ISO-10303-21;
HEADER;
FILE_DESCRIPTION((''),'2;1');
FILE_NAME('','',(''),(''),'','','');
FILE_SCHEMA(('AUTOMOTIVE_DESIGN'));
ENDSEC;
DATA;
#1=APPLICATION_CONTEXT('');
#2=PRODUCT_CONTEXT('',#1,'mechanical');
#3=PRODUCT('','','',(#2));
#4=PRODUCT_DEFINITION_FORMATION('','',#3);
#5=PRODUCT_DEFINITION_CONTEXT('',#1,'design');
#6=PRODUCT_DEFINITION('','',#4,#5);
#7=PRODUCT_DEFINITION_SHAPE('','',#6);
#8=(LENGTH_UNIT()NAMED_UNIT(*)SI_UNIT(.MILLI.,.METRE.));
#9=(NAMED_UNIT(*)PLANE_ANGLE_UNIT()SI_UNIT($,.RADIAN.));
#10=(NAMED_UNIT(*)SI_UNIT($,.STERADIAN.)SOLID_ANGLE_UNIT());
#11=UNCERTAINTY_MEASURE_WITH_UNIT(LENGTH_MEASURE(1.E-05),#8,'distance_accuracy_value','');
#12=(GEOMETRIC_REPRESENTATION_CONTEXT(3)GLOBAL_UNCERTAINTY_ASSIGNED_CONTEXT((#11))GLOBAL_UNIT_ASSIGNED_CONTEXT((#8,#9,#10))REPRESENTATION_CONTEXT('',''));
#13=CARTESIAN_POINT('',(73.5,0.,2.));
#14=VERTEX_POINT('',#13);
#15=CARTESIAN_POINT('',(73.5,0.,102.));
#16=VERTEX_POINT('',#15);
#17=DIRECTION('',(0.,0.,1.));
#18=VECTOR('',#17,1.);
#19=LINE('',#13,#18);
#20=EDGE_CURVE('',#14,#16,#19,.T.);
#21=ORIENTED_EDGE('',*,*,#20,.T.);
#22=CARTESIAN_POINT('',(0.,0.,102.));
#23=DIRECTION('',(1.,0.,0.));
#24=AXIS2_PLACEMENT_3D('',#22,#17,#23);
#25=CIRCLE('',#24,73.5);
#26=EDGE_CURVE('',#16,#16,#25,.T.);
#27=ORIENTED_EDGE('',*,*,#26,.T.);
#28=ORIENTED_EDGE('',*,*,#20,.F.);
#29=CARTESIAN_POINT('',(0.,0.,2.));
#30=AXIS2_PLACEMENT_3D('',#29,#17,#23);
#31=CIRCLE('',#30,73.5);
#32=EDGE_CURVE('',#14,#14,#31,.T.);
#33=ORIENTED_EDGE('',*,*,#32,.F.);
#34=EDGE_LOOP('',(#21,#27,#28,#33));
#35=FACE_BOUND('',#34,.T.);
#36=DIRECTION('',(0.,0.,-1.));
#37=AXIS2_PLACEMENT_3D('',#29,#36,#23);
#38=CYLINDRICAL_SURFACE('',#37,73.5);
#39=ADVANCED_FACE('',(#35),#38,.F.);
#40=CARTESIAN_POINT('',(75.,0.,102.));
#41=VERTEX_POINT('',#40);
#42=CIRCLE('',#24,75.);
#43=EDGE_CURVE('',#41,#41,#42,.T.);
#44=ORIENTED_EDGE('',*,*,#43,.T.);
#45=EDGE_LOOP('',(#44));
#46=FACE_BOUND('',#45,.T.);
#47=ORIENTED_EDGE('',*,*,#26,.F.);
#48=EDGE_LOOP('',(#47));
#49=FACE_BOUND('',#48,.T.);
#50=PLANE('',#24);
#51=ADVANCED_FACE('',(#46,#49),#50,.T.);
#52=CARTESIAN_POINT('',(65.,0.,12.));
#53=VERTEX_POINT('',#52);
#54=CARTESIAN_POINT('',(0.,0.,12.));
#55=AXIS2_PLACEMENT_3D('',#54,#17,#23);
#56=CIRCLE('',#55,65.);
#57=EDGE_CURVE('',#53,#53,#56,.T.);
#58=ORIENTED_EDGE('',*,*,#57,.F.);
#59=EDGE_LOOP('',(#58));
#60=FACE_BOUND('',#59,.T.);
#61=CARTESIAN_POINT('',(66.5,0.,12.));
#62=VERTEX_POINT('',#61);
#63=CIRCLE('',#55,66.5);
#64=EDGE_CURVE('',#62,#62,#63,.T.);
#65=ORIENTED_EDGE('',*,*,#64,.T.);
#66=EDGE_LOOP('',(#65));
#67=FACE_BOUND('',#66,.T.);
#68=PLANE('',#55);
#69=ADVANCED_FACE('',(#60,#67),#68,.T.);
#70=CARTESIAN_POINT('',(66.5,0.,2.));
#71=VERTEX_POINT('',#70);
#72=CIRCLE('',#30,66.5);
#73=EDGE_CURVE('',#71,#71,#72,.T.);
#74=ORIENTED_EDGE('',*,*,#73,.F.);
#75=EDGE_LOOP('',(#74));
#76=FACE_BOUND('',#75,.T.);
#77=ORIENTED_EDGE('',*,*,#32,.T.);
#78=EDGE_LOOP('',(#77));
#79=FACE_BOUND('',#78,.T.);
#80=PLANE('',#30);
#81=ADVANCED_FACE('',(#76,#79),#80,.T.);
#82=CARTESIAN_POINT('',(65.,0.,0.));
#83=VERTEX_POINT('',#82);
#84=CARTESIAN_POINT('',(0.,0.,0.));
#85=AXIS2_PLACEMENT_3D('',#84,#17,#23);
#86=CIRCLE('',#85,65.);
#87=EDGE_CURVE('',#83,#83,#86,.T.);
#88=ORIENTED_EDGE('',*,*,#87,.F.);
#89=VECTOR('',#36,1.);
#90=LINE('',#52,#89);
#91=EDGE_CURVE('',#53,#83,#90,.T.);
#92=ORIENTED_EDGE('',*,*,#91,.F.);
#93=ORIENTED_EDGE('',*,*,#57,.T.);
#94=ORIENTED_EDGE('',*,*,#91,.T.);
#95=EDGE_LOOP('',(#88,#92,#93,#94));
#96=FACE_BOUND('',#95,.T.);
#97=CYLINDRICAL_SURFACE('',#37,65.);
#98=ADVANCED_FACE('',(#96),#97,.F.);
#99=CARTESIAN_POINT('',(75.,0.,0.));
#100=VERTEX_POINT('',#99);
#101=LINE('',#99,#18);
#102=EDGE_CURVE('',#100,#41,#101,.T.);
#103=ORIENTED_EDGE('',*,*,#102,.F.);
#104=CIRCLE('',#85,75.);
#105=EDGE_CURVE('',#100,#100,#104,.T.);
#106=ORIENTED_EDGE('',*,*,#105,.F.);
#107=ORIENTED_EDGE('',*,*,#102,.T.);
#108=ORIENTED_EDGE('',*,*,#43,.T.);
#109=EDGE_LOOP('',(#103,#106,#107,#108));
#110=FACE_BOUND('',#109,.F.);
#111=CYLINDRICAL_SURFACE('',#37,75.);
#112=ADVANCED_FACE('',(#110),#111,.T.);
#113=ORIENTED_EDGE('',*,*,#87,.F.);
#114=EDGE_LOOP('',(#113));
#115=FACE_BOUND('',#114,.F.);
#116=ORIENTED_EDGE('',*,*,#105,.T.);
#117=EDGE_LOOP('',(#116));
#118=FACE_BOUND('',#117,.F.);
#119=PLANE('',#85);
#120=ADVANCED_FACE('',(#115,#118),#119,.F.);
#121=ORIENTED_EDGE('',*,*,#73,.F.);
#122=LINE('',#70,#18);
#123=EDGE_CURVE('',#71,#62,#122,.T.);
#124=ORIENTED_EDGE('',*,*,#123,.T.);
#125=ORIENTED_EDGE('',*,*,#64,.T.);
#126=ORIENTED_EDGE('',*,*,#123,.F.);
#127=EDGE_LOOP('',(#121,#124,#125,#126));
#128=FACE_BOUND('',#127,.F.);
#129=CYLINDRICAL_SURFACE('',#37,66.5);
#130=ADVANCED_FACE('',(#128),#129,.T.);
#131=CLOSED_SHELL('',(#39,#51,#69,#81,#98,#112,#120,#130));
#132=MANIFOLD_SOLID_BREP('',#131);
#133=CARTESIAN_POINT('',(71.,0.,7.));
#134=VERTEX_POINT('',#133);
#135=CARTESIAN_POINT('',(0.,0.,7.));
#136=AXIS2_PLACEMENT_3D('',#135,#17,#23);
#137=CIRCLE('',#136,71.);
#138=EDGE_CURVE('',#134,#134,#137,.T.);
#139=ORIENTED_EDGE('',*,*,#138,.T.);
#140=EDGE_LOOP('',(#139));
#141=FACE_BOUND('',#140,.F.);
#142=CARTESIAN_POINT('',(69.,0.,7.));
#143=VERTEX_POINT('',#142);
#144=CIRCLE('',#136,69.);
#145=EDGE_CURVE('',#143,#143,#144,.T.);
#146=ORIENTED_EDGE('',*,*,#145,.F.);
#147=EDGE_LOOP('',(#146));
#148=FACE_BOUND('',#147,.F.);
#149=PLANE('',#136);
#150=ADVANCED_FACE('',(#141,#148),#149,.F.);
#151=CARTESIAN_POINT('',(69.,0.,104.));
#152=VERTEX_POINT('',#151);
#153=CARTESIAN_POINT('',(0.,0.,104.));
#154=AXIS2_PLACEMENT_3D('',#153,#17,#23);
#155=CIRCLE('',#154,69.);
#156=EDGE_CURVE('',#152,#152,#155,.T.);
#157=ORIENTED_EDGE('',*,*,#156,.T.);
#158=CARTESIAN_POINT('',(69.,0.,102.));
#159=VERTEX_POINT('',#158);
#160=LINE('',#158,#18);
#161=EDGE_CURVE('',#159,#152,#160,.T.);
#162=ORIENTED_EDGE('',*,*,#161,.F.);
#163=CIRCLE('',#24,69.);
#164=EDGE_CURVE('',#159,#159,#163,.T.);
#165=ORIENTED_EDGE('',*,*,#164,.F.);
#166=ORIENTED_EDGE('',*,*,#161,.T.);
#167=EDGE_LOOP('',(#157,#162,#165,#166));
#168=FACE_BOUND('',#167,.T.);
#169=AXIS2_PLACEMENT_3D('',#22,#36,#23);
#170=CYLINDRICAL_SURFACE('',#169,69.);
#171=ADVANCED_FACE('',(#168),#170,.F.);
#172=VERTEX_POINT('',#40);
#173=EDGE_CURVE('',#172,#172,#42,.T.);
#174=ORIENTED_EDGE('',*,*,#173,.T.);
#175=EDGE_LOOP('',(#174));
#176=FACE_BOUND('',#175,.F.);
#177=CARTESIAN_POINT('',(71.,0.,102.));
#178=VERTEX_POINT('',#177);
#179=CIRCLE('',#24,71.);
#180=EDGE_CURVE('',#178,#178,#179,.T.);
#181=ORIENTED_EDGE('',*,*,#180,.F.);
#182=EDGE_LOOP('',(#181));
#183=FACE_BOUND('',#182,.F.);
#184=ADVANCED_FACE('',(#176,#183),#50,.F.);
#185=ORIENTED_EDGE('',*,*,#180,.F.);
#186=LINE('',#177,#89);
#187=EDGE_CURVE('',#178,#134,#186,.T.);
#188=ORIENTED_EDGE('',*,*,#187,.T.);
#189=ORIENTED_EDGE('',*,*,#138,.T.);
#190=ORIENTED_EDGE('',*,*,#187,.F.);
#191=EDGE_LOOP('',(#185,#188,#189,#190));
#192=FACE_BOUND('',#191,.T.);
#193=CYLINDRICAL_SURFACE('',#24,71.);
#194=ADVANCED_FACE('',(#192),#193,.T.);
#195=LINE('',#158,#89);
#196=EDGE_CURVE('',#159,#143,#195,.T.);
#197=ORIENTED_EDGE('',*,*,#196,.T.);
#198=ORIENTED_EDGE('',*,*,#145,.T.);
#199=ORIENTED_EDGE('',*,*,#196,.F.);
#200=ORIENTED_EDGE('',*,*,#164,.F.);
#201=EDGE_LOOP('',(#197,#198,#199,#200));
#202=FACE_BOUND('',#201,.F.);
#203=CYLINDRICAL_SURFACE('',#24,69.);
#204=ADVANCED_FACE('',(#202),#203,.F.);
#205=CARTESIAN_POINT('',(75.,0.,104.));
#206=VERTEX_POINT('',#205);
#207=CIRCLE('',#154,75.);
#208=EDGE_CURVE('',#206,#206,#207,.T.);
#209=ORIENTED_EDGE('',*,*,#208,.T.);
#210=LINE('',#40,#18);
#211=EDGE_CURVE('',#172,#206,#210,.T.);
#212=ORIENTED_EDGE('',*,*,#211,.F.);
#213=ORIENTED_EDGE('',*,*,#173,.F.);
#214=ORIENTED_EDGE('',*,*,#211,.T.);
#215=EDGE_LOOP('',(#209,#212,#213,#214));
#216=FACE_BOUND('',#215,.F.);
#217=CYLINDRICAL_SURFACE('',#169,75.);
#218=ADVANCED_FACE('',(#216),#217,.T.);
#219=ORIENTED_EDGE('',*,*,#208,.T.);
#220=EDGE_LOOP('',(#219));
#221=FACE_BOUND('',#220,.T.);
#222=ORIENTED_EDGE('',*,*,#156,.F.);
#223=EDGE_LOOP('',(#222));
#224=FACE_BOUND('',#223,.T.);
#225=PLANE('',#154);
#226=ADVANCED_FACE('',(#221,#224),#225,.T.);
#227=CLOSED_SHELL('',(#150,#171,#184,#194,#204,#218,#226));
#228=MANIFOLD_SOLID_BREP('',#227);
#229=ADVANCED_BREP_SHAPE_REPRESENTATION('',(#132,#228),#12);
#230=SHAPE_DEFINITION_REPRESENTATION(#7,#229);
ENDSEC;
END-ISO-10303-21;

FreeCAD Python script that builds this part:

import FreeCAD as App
import Part
import Sketcher
Q = App.Units.Quantity

doc = App.newDocument("Part")
body = doc.addObject("PartDesign::Body", "Body")

# Sketch on XY plane
sketch1 = body.newObject("Sketcher::SketchObject", "Sketch")
sketch1.AttachmentSupport = (doc.getObject("XY_Plane"), [""])
sketch1.MapMode = "FlatFace"
sketch1.addGeometry([
    Part.Circle(App.Vector(0, 0, 0), App.Vector(0, 0, 1), 75),
    Part.Circle(App.Vector(0, 0, 0), App.Vector(0, 0, 1), 65),
], False)
sketch1.addConstraint([
    Sketcher.Constraint("Coincident", 0, 3, -1, 1),
    Sketcher.Constraint("Coincident", 1, 3, -1, 1),
    Sketcher.Constraint("Diameter", 0, Q("150 mm")),
    Sketcher.Constraint("Diameter", 1, Q("130 mm")),
])
pad1 = body.newObject("PartDesign::Pad", "Pad")
pad1.Profile = sketch1
pad1.Length = 2

# Sketch on XY plane
sketch2 = body.newObject("Sketcher::SketchObject", "Sketch001")
sketch2.AttachmentSupport = (doc.getObject("XY_Plane"), [""])
sketch2.MapMode = "FlatFace"
sketch2.AttachmentOffset = App.Placement(App.Vector(0, 0, 2), App.Rotation())
sketch2.addGeometry([
    Part.Circle(App.Vector(0, 0, 0), App.Vector(0, 0, 1), 66),
    Part.Circle(App.Vector(0, 0, 0), App.Vector(0, 0, 1), 65),
], False)
sketch2.addConstraint([
    Sketcher.Constraint("Coincident", 0, 3, -1, 1),
    Sketcher.Constraint("Coincident", 1, 3, -1, 1),
    Sketcher.Constraint("Diameter", 0, Q("133 mm")),
    Sketcher.Constraint("Diameter", 1, Q("130 mm")),
])
pad2 = body.newObject("PartDesign::Pad", "Pad001")
pad2.Profile = sketch2
pad2.Length = 10

# Sketch on XY plane
sketch3 = body.newObject("Sketcher::SketchObject", "Sketch002")
sketch3.AttachmentSupport = (doc.getObject("XY_Plane"), [""])
sketch3.MapMode = "FlatFace"
sketch3.AttachmentOffset = App.Placement(App.Vector(0, 0, 2), App.Rotation())
sketch3.addGeometry([
    Part.Circle(App.Vector(0, 0, 0), App.Vector(0, 0, 1), 75),
    Part.Circle(App.Vector(0, 0, 0), App.Vector(0, 0, 1), 74),
], False)
sketch3.addConstraint([
    Sketcher.Constraint("Coincident", 0, 3, -1, 1),
    Sketcher.Constraint("Coincident", 1, 3, -1, 1),
    Sketcher.Constraint("Diameter", 0, Q("150 mm")),
    Sketcher.Constraint("Diameter", 1, Q("147 mm")),
])
pad3 = body.newObject("PartDesign::Pad", "Pad002")
pad3.Profile = sketch3
pad3.Length = 100
body2 = doc.addObject("PartDesign::Body", "Body001")

# Sketch on XY plane
sketch4 = body2.newObject("Sketcher::SketchObject", "Sketch003")
sketch4.AttachmentSupport = (doc.getObject("XY_Plane001"), [""])
sketch4.MapMode = "FlatFace"
sketch4.AttachmentOffset = App.Placement(App.Vector(0, 0, 102), App.Rotation())
sketch4.addGeometry([
    Part.Circle(App.Vector(0, 0, 0), App.Vector(0, 0, 1), 75),
    Part.Circle(App.Vector(0, 0, 0), App.Vector(0, 0, 1), 69),
], False)
sketch4.addConstraint([
    Sketcher.Constraint("Coincident", 0, 3, -1, 1),
    Sketcher.Constraint("Coincident", 1, 3, -1, 1),
    Sketcher.Constraint("Diameter", 0, Q("150 mm")),
    Sketcher.Constraint("Diameter", 1, Q("138 mm")),
])
pad4 = body2.newObject("PartDesign::Pad", "Pad003")
pad4.Profile = sketch4
pad4.Length = 2

# Sketch on XY plane
sketch5 = body2.newObject("Sketcher::SketchObject", "Sketch004")
sketch5.AttachmentSupport = (doc.getObject("XY_Plane001"), [""])
sketch5.MapMode = "FlatFace"
sketch5.AttachmentOffset = App.Placement(App.Vector(0, 0, 102), App.Rotation())
sketch5.addGeometry([
    Part.Circle(App.Vector(0, 0, 0), App.Vector(0, 0, 1), 71),
    Part.Circle(App.Vector(0, 0, 0), App.Vector(0, 0, 1), 69),
], False)
sketch5.addConstraint([
    Sketcher.Constraint("Coincident", 0, 3, -1, 1),
    Sketcher.Constraint("Coincident", 1, 3, -1, 1),
    Sketcher.Constraint("Diameter", 0, Q("142 mm")),
    Sketcher.Constraint("Diameter", 1, Q("138 mm")),
])
pad5 = body2.newObject("PartDesign::Pad", "Pad004")
pad5.Profile = sketch5
pad5.Length = 95
pad5.Reversed = True

doc.recompute()
